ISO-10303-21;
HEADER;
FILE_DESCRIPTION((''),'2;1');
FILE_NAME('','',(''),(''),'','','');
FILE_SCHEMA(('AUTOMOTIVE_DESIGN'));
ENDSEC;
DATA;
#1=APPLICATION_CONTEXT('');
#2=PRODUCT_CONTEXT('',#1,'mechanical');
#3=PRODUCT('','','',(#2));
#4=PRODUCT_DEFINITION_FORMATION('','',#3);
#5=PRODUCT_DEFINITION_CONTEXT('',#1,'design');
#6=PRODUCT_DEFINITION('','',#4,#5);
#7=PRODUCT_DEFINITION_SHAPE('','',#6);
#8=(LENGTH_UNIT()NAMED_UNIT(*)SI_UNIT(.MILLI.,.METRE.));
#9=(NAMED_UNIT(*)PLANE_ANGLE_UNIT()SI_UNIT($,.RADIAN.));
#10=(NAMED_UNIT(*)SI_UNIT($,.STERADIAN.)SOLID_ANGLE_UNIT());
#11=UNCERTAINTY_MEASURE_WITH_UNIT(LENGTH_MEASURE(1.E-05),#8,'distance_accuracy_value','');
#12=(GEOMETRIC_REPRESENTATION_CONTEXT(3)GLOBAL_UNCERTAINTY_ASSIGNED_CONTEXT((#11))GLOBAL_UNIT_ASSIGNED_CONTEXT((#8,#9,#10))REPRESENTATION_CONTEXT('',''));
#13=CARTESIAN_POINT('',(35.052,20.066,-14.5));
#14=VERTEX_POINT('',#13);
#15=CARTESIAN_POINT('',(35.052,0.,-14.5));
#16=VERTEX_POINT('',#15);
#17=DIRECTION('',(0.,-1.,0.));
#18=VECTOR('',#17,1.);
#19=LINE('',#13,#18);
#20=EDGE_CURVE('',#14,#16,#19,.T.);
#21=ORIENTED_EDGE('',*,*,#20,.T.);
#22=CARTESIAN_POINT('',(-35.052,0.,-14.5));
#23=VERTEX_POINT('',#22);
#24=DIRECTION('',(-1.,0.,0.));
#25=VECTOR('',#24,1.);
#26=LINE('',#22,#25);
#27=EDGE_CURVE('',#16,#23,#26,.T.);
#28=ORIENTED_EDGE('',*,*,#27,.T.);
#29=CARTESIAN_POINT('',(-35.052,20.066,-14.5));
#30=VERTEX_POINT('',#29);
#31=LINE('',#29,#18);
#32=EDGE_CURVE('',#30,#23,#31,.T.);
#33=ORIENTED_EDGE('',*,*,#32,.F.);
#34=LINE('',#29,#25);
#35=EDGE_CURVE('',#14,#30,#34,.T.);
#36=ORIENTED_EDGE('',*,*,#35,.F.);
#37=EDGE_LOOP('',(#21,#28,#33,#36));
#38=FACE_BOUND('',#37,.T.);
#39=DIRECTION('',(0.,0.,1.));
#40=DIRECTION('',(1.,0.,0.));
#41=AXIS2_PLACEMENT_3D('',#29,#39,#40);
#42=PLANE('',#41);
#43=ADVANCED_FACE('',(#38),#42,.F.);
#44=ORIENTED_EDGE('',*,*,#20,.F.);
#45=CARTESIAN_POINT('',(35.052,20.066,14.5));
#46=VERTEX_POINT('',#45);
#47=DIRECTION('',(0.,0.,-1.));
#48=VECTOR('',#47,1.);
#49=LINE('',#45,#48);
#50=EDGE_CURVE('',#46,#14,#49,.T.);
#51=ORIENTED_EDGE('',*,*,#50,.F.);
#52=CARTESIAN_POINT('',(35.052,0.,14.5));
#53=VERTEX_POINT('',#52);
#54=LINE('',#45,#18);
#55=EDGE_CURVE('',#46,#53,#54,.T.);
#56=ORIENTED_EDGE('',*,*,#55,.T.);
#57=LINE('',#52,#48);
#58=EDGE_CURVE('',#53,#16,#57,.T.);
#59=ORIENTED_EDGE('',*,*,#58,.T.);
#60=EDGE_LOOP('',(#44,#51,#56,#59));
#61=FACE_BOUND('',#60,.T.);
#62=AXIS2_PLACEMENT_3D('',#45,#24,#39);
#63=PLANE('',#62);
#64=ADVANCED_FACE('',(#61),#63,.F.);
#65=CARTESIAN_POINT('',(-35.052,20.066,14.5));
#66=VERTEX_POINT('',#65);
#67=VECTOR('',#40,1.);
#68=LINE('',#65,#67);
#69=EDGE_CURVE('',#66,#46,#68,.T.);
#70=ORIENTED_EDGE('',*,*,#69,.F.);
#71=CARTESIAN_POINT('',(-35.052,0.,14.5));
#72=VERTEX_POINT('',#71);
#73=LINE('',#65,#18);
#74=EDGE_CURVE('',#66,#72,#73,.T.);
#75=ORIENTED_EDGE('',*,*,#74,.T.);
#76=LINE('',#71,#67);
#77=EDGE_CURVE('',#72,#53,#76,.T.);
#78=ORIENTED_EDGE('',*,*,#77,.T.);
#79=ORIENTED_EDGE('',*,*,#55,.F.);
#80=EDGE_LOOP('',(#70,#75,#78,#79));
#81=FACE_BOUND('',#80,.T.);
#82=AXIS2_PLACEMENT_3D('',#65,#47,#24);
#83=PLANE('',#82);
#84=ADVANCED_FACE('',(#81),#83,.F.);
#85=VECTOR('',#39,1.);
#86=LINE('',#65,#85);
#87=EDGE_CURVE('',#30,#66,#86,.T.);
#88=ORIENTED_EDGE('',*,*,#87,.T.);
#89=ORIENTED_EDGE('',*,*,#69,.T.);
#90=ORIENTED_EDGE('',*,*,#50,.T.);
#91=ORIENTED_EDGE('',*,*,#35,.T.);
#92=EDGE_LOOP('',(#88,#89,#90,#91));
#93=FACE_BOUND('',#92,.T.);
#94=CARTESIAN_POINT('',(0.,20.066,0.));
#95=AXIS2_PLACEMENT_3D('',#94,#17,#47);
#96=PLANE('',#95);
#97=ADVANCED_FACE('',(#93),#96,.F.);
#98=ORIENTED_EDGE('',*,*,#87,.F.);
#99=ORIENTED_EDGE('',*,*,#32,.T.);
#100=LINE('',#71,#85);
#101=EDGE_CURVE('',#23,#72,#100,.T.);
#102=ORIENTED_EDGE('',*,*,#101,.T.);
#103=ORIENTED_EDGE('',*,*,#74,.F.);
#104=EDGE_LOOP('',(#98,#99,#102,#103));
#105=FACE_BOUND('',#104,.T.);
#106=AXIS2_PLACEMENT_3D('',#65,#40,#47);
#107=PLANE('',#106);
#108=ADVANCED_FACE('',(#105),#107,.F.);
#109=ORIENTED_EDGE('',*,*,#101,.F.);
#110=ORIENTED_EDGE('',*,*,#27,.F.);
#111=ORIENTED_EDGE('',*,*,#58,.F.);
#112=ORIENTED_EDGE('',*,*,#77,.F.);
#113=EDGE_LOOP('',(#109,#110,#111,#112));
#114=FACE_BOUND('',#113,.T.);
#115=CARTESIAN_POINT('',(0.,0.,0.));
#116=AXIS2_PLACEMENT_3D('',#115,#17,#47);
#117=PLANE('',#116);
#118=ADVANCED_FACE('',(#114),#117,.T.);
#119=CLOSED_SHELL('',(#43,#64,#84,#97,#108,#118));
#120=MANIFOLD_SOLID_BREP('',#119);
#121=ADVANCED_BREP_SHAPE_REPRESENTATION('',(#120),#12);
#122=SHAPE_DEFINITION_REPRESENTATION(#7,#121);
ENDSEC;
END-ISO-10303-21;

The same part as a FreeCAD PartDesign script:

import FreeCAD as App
import Part
import Sketcher
Q = App.Units.Quantity

doc = App.newDocument("Part")
body = doc.addObject("PartDesign::Body", "Body")

# Sketch on XZ plane
sketch1 = body.newObject("Sketcher::SketchObject", "Sketch")
sketch1.AttachmentSupport = (doc.getObject("XZ_Plane"), [""])
sketch1.MapMode = "FlatFace"
sketch1.addGeometry([
    Part.LineSegment(App.Vector(-35.052, -14.5, 0), App.Vector(-35.052, 14.5, 0)),
    Part.LineSegment(App.Vector(-35.052, 14.5, 0), App.Vector(35.052, 14.5, 0)),
    Part.LineSegment(App.Vector(35.052, 14.5, 0), App.Vector(35.052, -14.5, 0)),
    Part.LineSegment(App.Vector(35.052, -14.5, 0), App.Vector(-35.052, -14.5, 0)),
], False)
sketch1.addConstraint([
    Sketcher.Constraint("Coincident", 0, 2, 1, 1),
    Sketcher.Constraint("Coincident", 1, 2, 2, 1),
    Sketcher.Constraint("Coincident", 2, 2, 3, 1),
    Sketcher.Constraint("Coincident", 3, 2, 0, 1),
    Sketcher.Constraint("Vertical", 0),
    Sketcher.Constraint("Horizontal", 1),
    Sketcher.Constraint("Vertical", 2),
    Sketcher.Constraint("Horizontal", 3),
    Sketcher.Constraint("Symmetric", 0, 2, 2, 2, -1, 1),
    Sketcher.Constraint("DistanceX", 1, 1, 1, 2, Q("2.76 in")),
    Sketcher.Constraint("DistanceY", 0, 1, 0, 2, 29.0),
])
pad1 = body.newObject("PartDesign::Pad", "Pad")
pad1.Profile = sketch1
pad1.Length = Q("0.79 in")
pad1.Reversed = True

doc.recompute()
